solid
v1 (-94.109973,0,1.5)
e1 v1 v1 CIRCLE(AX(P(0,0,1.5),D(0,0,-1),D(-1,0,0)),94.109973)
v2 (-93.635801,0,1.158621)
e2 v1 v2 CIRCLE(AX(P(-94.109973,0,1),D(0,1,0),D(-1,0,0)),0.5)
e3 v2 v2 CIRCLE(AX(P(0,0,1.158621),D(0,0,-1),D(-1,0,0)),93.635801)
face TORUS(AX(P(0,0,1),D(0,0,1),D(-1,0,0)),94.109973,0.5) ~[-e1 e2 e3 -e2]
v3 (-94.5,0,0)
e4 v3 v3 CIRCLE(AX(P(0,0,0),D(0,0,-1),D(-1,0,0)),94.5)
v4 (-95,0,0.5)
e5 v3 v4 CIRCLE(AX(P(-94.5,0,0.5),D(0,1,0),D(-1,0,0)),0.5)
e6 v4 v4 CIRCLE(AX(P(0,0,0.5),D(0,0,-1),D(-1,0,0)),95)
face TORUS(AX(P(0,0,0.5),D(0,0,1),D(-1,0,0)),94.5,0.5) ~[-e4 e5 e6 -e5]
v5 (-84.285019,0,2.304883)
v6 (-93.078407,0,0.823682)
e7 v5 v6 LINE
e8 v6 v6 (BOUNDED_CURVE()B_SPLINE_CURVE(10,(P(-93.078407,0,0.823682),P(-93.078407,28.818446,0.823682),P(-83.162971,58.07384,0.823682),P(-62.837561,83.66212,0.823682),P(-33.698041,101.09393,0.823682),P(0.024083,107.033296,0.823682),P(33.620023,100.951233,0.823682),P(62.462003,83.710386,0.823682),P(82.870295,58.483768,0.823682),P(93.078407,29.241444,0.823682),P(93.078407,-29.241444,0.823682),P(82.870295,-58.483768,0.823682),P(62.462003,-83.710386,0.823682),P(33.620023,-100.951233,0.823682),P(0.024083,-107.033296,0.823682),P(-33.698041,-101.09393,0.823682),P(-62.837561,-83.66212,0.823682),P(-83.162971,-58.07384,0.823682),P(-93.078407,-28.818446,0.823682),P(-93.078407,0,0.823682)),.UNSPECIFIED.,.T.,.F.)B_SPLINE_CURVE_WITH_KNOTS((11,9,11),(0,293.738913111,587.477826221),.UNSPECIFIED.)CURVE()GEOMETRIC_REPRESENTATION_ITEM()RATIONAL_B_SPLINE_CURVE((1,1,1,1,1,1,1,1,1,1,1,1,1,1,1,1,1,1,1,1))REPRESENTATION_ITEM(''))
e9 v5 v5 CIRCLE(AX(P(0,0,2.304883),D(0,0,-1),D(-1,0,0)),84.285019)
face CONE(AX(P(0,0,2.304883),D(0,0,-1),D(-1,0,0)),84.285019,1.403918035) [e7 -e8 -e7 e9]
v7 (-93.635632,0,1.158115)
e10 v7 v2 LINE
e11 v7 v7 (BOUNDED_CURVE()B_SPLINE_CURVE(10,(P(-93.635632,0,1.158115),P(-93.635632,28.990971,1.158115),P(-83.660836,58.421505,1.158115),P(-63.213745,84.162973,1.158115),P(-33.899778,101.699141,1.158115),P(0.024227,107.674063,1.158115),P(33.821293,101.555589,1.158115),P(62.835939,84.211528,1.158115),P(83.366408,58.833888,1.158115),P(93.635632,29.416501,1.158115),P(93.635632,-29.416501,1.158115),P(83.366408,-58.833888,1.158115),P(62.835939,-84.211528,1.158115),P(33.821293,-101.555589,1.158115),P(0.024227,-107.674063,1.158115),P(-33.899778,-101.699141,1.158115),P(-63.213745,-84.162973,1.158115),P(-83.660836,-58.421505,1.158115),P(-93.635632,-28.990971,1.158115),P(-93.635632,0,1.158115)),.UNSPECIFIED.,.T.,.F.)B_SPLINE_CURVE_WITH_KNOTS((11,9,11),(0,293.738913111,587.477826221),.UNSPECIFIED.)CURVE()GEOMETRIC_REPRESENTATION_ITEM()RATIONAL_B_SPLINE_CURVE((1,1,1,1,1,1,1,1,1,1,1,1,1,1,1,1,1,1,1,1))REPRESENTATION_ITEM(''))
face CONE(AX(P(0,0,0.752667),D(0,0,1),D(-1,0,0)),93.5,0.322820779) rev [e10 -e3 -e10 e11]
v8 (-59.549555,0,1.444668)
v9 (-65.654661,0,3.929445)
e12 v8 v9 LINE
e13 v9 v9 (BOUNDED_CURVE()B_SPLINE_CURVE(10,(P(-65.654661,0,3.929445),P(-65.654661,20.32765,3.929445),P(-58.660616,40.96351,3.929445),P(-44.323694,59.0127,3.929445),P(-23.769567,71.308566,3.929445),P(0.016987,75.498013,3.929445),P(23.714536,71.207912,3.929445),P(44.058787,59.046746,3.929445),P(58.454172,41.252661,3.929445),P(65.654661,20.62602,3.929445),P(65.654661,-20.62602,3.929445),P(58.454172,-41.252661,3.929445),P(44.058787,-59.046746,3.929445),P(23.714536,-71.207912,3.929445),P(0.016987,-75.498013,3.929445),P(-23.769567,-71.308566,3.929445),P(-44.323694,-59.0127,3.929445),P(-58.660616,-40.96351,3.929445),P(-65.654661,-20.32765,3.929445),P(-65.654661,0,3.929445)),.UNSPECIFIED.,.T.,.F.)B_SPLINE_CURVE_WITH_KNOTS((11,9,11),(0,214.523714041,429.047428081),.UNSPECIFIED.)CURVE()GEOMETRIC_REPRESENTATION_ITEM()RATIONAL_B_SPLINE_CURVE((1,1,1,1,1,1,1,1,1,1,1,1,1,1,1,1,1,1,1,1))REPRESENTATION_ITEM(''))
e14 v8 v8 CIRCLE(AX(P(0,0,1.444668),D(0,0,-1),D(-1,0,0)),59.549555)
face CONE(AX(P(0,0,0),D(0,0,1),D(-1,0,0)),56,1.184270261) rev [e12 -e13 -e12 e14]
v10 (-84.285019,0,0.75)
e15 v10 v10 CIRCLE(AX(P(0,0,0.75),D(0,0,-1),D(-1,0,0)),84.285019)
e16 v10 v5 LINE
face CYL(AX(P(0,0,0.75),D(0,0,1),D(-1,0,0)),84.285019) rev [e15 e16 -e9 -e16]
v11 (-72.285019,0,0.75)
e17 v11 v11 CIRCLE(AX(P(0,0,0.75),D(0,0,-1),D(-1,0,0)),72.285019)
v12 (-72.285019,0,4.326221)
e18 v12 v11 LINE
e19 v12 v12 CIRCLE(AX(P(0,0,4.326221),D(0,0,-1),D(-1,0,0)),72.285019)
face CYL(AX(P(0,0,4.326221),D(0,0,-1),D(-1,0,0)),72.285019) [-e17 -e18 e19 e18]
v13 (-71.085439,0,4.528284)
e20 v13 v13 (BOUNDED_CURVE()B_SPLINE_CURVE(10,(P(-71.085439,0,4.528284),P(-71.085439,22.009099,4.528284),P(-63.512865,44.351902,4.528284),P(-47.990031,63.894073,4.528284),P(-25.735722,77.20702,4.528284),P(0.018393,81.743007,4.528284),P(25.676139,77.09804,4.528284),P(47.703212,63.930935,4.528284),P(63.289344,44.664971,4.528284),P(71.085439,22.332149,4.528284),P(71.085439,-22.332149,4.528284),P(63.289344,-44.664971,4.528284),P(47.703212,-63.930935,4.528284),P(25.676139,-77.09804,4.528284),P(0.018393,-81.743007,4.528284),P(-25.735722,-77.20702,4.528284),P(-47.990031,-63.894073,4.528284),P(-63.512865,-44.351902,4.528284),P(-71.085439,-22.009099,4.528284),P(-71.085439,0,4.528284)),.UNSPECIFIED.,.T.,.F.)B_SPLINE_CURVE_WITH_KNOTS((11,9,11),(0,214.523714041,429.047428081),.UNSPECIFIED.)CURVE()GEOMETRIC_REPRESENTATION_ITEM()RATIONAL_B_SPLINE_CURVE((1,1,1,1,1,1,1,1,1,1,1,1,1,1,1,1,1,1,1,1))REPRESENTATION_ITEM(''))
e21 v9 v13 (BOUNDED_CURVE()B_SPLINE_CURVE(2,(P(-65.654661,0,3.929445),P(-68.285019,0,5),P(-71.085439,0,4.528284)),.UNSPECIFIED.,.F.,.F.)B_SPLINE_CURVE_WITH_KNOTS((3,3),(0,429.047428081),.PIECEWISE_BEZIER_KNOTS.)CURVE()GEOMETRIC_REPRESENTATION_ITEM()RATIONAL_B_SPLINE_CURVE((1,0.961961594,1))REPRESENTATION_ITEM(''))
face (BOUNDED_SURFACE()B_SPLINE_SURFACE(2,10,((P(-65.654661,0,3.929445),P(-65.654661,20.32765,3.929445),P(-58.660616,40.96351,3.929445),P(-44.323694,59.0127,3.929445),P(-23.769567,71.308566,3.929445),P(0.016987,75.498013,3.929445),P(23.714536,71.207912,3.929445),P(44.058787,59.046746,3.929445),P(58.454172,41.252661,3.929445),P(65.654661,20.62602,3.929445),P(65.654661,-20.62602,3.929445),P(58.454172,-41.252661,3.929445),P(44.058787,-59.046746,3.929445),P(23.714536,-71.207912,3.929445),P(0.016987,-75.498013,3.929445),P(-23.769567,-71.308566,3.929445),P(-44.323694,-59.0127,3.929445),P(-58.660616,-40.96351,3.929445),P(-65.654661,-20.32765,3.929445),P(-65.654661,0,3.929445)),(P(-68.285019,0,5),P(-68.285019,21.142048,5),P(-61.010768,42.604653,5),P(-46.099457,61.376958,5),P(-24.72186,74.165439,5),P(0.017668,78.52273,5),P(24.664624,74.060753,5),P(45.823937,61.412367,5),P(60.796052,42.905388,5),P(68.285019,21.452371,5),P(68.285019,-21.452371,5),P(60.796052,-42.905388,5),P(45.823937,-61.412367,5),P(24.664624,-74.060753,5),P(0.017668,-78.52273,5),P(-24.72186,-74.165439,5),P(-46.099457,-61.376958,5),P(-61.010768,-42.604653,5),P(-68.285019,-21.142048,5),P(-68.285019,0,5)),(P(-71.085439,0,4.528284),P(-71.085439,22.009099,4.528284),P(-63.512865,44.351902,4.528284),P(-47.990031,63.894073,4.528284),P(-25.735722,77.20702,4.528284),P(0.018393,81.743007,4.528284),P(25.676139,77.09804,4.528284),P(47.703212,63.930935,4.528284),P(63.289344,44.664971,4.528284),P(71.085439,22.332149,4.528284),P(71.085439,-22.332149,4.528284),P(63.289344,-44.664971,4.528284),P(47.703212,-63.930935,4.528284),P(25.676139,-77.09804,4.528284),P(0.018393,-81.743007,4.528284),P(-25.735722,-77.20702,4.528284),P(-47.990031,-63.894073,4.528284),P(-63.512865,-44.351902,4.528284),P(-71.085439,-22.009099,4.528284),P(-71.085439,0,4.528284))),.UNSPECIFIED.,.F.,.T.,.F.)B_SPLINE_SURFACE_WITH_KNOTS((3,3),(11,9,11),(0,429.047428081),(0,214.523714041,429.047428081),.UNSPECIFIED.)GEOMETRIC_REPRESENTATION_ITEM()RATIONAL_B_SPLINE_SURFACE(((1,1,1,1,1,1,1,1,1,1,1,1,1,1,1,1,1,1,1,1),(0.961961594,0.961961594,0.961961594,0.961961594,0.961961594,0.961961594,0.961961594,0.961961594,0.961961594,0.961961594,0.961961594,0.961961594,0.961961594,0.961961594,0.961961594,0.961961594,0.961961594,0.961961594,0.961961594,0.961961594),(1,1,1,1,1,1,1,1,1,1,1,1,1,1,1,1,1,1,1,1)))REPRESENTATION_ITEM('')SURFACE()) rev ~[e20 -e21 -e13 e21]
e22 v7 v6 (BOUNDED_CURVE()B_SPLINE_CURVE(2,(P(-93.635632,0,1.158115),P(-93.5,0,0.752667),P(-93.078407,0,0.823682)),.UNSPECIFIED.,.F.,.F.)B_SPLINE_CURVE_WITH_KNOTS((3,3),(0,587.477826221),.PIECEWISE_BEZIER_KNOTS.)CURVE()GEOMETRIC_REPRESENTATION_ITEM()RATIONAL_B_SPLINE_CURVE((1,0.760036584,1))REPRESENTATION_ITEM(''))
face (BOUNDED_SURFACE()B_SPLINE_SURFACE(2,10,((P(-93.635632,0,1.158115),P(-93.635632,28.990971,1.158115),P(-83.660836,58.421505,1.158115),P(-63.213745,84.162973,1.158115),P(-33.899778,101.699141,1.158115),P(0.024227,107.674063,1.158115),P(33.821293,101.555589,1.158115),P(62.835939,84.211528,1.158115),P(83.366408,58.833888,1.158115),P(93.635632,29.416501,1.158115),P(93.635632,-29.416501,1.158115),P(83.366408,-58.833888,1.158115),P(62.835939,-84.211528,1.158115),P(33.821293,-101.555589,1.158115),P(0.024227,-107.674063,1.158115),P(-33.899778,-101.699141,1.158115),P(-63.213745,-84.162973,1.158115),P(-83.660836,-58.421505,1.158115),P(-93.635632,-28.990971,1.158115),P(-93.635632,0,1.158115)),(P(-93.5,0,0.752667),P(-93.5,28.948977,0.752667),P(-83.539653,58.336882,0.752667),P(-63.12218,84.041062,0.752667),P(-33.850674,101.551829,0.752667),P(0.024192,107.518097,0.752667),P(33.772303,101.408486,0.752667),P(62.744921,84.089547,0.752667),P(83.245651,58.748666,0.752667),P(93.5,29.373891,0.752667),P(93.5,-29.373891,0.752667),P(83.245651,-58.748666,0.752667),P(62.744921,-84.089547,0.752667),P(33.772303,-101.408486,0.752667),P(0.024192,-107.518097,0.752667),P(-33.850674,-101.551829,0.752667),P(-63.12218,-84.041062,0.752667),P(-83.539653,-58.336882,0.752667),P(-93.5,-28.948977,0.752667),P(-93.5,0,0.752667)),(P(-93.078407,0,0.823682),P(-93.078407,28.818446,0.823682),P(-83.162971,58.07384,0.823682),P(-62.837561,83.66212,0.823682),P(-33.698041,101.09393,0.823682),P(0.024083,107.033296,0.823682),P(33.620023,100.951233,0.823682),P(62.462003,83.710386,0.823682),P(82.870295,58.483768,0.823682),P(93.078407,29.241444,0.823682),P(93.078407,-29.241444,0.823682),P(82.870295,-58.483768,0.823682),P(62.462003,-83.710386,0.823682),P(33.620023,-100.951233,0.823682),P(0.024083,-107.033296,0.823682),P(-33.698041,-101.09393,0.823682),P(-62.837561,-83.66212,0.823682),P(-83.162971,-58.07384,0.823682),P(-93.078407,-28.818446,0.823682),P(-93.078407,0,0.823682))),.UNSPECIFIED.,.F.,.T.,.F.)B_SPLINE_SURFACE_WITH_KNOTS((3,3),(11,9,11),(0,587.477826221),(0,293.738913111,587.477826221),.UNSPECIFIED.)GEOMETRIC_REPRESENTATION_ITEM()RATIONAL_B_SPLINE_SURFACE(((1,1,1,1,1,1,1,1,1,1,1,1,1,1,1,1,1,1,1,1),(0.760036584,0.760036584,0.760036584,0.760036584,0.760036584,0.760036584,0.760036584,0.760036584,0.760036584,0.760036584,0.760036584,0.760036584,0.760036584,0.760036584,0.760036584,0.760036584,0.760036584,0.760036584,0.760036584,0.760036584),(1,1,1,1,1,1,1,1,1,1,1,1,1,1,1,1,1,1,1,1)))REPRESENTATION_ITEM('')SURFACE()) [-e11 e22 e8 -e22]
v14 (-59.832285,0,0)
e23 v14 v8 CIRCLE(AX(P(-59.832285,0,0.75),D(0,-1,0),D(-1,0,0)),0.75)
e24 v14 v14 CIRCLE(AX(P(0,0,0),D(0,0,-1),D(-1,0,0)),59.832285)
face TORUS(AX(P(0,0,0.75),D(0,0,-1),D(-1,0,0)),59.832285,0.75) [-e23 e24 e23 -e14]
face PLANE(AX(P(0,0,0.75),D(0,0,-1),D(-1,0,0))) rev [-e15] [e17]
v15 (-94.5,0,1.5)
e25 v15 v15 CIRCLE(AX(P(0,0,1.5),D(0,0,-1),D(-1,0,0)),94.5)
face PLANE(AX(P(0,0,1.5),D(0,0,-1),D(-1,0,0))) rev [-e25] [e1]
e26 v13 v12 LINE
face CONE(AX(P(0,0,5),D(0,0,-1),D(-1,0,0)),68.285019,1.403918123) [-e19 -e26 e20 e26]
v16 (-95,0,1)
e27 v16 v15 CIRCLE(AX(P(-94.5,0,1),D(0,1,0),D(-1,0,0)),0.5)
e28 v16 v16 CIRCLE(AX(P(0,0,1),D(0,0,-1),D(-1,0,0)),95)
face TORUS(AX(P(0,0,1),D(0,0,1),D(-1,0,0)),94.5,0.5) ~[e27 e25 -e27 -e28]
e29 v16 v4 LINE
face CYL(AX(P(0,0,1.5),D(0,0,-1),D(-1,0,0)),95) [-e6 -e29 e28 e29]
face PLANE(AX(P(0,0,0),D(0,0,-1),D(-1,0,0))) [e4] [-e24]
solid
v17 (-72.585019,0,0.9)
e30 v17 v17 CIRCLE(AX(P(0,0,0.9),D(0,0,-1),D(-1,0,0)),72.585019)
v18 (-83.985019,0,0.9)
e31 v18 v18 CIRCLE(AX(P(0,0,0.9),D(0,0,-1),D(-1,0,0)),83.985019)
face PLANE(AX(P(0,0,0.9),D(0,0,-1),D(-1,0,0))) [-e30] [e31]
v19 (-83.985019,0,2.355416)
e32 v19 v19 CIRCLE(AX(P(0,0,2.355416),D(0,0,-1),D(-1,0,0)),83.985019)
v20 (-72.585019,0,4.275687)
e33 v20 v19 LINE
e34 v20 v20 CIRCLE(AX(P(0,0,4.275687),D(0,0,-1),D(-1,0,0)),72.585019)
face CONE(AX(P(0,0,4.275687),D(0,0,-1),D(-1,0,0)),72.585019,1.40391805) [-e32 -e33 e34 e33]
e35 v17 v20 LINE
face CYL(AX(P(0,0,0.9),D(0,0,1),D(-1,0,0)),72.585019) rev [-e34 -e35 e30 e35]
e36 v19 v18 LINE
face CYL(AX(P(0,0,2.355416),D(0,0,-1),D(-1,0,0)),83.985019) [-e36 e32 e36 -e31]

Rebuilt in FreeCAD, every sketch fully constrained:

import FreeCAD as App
import Part
import Sketcher
from FreeCAD import Vector


def edges_at(feature, points):
    """Names of the edges that pass closest to the given points."""
    edges = feature.Shape.Edges
    near = lambda p: min(range(len(edges)), key=lambda i: edges[i].distToShape(Part.Vertex(*p))[0])
    return sorted({f"Edge{near(p) + 1}" for p in points})


def add_polygon(sketch, points):
    """Adds a closed chain of lines whose ends are joined by coincident constraints."""
    first, n = sketch.GeometryCount, len(points)
    for a, b in zip(points, points[1:] + points[:1]):
        sketch.addGeometry(Part.LineSegment(App.Vector(*a, 0), App.Vector(*b, 0)), False)
    for i in range(n):
        sketch.addConstraint(Sketcher.Constraint("Coincident", first + i, 2, first + (i + 1) % n, 1))

doc = App.newDocument("Part")
body = doc.addObject("PartDesign::Body", "Body")

# Sketch on XZ plane
sketch1 = body.newObject("Sketcher::SketchObject", "Sketch")
sketch1.AttachmentSupport = (doc.getObject("XZ_Plane"), [""])
sketch1.MapMode = "FlatFace"
add_polygon(sketch1, [(-95, 0), (-56, 0), (-68.285019, 5), (-72.285019, 4.326221), (-72.285019, 0.75), (-84.285019, 0.75), (-84.285019, 2.304883), (-93.5, 0.752667), (-93.75, 1.5), (-95, 1.5)])  # lines 0-9
sketch1.addConstraint(Sketcher.Constraint("Horizontal", 0))
sketch1.addConstraint(Sketcher.Constraint("Vertical", 3))
sketch1.addConstraint(Sketcher.Constraint("Horizontal", 4))
sketch1.addConstraint(Sketcher.Constraint("Vertical", 5))
sketch1.addConstraint(Sketcher.Constraint("Horizontal", 8))
sketch1.addConstraint(Sketcher.Constraint("Vertical", 9))
sketch1.addConstraint(Sketcher.Constraint("PointOnObject", 0, 2, -1))
sketch1.addConstraint(Sketcher.Constraint("Parallel", 2, 6))
sketch1.addConstraint(Sketcher.Constraint("DistanceX", 0, 1, 0, 2, 39.0))
sketch1.addConstraint(Sketcher.Constraint("DistanceX", 4, 2, 4, 1, 12.0))
sketch1.addConstraint(Sketcher.Constraint("DistanceY", 9, 2, 9, 1, 1.5))
sketch1.addConstraint(Sketcher.Constraint("DistanceX", 0, 2, -1, 1, 56.0))
sketch1.addConstraint(Sketcher.Constraint("DistanceY", -1, 1, 1, 2, 5.0))
sketch1.addConstraint(Sketcher.Constraint("DistanceX", 2, 2, 1, 2, 4.0))
sketch1.addConstraint(Sketcher.Constraint("DistanceX", 8, 2, 8, 1, 1.25))
sketch1.addConstraint(Sketcher.Constraint("DistanceX", 6, 2, -1, 1, 93.5))
sketch1.addConstraint(Sketcher.Constraint("DistanceY", -1, 1, 3, 2, 0.75))
sketch1.addConstraint(Sketcher.Constraint("DistanceY", 3, 2, 3, 1, 3.576221))
sketch1.addConstraint(Sketcher.Constraint("Distance", 7, 0.78804))
sketch1.addConstraint(Sketcher.Constraint("DistanceY", 5, 1, 5, 2, 1.554883))
revolution = body.newObject("PartDesign::Revolution", "Revolution")
revolution.Profile = sketch1
revolution.ReferenceAxis = (sketch1, ["V_Axis"])
revolution.Angle = 360
doc.recompute()

fillet = body.newObject("PartDesign::Fillet", "Fillet")
fillet.Base = (revolution, edges_at(revolution, [(68.285, 0, 5)]))
fillet.Radius = 10
doc.recompute()

fillet2 = body.newObject("PartDesign::Fillet", "Fillet001")
fillet2.Base = (fillet, edges_at(fillet, [(93.75, 0, 1.5), (95, 0, 1.5), (95, 0, 0)]))
fillet2.Radius = 0.5
doc.recompute()

fillet3 = body.newObject("PartDesign::Fillet", "Fillet002")
fillet3.Base = (fillet2, edges_at(fillet2, [(93.5, 0, 0.753)]))
fillet3.Radius = 0.5
doc.recompute()

fillet4 = body.newObject("PartDesign::Fillet", "Fillet003")
fillet4.Base = (fillet3, edges_at(fillet3, [(56, 0, 0)]))
fillet4.Radius = 0.75
body2 = doc.addObject("PartDesign::Body", "Body001")

# Sketch on XZ plane
sketch2 = body2.newObject("Sketcher::SketchObject", "Sketch001")
sketch2.AttachmentSupport = (doc.getObject("XZ_Plane001"), [""])
sketch2.MapMode = "FlatFace"
add_polygon(sketch2, [(-83.985019, 0.9), (-72.585019, 0.9), (-72.585019, 4.275687), (-83.985019, 2.355416)])  # lines 0-3
sketch2.addConstraint(Sketcher.Constraint("Horizontal", 0))
sketch2.addConstraint(Sketcher.Constraint("Vertical", 1))
sketch2.addConstraint(Sketcher.Constraint("Vertical", 3))
sketch2.addConstraint(Sketcher.Constraint("DistanceX", 0, 1, 0, 2, 11.4))
sketch2.addConstraint(Sketcher.Constraint("DistanceY", -1, 1, 0, 2, 0.9))
sketch2.addConstraint(Sketcher.Constraint("Distance", 2, 11.560599))
sketch2.addConstraint(Sketcher.Constraint("DistanceY", 1, 1, 1, 2, 3.375687))
sketch2.addConstraint(Sketcher.Constraint("DistanceX", 0, 2, -1, 1, 72.585019))
revolution2 = body2.newObject("PartDesign::Revolution", "Revolution001")
revolution2.Profile = sketch2
revolution2.ReferenceAxis = (sketch2, ["V_Axis"])
revolution2.Angle = 360

doc.recompute()
